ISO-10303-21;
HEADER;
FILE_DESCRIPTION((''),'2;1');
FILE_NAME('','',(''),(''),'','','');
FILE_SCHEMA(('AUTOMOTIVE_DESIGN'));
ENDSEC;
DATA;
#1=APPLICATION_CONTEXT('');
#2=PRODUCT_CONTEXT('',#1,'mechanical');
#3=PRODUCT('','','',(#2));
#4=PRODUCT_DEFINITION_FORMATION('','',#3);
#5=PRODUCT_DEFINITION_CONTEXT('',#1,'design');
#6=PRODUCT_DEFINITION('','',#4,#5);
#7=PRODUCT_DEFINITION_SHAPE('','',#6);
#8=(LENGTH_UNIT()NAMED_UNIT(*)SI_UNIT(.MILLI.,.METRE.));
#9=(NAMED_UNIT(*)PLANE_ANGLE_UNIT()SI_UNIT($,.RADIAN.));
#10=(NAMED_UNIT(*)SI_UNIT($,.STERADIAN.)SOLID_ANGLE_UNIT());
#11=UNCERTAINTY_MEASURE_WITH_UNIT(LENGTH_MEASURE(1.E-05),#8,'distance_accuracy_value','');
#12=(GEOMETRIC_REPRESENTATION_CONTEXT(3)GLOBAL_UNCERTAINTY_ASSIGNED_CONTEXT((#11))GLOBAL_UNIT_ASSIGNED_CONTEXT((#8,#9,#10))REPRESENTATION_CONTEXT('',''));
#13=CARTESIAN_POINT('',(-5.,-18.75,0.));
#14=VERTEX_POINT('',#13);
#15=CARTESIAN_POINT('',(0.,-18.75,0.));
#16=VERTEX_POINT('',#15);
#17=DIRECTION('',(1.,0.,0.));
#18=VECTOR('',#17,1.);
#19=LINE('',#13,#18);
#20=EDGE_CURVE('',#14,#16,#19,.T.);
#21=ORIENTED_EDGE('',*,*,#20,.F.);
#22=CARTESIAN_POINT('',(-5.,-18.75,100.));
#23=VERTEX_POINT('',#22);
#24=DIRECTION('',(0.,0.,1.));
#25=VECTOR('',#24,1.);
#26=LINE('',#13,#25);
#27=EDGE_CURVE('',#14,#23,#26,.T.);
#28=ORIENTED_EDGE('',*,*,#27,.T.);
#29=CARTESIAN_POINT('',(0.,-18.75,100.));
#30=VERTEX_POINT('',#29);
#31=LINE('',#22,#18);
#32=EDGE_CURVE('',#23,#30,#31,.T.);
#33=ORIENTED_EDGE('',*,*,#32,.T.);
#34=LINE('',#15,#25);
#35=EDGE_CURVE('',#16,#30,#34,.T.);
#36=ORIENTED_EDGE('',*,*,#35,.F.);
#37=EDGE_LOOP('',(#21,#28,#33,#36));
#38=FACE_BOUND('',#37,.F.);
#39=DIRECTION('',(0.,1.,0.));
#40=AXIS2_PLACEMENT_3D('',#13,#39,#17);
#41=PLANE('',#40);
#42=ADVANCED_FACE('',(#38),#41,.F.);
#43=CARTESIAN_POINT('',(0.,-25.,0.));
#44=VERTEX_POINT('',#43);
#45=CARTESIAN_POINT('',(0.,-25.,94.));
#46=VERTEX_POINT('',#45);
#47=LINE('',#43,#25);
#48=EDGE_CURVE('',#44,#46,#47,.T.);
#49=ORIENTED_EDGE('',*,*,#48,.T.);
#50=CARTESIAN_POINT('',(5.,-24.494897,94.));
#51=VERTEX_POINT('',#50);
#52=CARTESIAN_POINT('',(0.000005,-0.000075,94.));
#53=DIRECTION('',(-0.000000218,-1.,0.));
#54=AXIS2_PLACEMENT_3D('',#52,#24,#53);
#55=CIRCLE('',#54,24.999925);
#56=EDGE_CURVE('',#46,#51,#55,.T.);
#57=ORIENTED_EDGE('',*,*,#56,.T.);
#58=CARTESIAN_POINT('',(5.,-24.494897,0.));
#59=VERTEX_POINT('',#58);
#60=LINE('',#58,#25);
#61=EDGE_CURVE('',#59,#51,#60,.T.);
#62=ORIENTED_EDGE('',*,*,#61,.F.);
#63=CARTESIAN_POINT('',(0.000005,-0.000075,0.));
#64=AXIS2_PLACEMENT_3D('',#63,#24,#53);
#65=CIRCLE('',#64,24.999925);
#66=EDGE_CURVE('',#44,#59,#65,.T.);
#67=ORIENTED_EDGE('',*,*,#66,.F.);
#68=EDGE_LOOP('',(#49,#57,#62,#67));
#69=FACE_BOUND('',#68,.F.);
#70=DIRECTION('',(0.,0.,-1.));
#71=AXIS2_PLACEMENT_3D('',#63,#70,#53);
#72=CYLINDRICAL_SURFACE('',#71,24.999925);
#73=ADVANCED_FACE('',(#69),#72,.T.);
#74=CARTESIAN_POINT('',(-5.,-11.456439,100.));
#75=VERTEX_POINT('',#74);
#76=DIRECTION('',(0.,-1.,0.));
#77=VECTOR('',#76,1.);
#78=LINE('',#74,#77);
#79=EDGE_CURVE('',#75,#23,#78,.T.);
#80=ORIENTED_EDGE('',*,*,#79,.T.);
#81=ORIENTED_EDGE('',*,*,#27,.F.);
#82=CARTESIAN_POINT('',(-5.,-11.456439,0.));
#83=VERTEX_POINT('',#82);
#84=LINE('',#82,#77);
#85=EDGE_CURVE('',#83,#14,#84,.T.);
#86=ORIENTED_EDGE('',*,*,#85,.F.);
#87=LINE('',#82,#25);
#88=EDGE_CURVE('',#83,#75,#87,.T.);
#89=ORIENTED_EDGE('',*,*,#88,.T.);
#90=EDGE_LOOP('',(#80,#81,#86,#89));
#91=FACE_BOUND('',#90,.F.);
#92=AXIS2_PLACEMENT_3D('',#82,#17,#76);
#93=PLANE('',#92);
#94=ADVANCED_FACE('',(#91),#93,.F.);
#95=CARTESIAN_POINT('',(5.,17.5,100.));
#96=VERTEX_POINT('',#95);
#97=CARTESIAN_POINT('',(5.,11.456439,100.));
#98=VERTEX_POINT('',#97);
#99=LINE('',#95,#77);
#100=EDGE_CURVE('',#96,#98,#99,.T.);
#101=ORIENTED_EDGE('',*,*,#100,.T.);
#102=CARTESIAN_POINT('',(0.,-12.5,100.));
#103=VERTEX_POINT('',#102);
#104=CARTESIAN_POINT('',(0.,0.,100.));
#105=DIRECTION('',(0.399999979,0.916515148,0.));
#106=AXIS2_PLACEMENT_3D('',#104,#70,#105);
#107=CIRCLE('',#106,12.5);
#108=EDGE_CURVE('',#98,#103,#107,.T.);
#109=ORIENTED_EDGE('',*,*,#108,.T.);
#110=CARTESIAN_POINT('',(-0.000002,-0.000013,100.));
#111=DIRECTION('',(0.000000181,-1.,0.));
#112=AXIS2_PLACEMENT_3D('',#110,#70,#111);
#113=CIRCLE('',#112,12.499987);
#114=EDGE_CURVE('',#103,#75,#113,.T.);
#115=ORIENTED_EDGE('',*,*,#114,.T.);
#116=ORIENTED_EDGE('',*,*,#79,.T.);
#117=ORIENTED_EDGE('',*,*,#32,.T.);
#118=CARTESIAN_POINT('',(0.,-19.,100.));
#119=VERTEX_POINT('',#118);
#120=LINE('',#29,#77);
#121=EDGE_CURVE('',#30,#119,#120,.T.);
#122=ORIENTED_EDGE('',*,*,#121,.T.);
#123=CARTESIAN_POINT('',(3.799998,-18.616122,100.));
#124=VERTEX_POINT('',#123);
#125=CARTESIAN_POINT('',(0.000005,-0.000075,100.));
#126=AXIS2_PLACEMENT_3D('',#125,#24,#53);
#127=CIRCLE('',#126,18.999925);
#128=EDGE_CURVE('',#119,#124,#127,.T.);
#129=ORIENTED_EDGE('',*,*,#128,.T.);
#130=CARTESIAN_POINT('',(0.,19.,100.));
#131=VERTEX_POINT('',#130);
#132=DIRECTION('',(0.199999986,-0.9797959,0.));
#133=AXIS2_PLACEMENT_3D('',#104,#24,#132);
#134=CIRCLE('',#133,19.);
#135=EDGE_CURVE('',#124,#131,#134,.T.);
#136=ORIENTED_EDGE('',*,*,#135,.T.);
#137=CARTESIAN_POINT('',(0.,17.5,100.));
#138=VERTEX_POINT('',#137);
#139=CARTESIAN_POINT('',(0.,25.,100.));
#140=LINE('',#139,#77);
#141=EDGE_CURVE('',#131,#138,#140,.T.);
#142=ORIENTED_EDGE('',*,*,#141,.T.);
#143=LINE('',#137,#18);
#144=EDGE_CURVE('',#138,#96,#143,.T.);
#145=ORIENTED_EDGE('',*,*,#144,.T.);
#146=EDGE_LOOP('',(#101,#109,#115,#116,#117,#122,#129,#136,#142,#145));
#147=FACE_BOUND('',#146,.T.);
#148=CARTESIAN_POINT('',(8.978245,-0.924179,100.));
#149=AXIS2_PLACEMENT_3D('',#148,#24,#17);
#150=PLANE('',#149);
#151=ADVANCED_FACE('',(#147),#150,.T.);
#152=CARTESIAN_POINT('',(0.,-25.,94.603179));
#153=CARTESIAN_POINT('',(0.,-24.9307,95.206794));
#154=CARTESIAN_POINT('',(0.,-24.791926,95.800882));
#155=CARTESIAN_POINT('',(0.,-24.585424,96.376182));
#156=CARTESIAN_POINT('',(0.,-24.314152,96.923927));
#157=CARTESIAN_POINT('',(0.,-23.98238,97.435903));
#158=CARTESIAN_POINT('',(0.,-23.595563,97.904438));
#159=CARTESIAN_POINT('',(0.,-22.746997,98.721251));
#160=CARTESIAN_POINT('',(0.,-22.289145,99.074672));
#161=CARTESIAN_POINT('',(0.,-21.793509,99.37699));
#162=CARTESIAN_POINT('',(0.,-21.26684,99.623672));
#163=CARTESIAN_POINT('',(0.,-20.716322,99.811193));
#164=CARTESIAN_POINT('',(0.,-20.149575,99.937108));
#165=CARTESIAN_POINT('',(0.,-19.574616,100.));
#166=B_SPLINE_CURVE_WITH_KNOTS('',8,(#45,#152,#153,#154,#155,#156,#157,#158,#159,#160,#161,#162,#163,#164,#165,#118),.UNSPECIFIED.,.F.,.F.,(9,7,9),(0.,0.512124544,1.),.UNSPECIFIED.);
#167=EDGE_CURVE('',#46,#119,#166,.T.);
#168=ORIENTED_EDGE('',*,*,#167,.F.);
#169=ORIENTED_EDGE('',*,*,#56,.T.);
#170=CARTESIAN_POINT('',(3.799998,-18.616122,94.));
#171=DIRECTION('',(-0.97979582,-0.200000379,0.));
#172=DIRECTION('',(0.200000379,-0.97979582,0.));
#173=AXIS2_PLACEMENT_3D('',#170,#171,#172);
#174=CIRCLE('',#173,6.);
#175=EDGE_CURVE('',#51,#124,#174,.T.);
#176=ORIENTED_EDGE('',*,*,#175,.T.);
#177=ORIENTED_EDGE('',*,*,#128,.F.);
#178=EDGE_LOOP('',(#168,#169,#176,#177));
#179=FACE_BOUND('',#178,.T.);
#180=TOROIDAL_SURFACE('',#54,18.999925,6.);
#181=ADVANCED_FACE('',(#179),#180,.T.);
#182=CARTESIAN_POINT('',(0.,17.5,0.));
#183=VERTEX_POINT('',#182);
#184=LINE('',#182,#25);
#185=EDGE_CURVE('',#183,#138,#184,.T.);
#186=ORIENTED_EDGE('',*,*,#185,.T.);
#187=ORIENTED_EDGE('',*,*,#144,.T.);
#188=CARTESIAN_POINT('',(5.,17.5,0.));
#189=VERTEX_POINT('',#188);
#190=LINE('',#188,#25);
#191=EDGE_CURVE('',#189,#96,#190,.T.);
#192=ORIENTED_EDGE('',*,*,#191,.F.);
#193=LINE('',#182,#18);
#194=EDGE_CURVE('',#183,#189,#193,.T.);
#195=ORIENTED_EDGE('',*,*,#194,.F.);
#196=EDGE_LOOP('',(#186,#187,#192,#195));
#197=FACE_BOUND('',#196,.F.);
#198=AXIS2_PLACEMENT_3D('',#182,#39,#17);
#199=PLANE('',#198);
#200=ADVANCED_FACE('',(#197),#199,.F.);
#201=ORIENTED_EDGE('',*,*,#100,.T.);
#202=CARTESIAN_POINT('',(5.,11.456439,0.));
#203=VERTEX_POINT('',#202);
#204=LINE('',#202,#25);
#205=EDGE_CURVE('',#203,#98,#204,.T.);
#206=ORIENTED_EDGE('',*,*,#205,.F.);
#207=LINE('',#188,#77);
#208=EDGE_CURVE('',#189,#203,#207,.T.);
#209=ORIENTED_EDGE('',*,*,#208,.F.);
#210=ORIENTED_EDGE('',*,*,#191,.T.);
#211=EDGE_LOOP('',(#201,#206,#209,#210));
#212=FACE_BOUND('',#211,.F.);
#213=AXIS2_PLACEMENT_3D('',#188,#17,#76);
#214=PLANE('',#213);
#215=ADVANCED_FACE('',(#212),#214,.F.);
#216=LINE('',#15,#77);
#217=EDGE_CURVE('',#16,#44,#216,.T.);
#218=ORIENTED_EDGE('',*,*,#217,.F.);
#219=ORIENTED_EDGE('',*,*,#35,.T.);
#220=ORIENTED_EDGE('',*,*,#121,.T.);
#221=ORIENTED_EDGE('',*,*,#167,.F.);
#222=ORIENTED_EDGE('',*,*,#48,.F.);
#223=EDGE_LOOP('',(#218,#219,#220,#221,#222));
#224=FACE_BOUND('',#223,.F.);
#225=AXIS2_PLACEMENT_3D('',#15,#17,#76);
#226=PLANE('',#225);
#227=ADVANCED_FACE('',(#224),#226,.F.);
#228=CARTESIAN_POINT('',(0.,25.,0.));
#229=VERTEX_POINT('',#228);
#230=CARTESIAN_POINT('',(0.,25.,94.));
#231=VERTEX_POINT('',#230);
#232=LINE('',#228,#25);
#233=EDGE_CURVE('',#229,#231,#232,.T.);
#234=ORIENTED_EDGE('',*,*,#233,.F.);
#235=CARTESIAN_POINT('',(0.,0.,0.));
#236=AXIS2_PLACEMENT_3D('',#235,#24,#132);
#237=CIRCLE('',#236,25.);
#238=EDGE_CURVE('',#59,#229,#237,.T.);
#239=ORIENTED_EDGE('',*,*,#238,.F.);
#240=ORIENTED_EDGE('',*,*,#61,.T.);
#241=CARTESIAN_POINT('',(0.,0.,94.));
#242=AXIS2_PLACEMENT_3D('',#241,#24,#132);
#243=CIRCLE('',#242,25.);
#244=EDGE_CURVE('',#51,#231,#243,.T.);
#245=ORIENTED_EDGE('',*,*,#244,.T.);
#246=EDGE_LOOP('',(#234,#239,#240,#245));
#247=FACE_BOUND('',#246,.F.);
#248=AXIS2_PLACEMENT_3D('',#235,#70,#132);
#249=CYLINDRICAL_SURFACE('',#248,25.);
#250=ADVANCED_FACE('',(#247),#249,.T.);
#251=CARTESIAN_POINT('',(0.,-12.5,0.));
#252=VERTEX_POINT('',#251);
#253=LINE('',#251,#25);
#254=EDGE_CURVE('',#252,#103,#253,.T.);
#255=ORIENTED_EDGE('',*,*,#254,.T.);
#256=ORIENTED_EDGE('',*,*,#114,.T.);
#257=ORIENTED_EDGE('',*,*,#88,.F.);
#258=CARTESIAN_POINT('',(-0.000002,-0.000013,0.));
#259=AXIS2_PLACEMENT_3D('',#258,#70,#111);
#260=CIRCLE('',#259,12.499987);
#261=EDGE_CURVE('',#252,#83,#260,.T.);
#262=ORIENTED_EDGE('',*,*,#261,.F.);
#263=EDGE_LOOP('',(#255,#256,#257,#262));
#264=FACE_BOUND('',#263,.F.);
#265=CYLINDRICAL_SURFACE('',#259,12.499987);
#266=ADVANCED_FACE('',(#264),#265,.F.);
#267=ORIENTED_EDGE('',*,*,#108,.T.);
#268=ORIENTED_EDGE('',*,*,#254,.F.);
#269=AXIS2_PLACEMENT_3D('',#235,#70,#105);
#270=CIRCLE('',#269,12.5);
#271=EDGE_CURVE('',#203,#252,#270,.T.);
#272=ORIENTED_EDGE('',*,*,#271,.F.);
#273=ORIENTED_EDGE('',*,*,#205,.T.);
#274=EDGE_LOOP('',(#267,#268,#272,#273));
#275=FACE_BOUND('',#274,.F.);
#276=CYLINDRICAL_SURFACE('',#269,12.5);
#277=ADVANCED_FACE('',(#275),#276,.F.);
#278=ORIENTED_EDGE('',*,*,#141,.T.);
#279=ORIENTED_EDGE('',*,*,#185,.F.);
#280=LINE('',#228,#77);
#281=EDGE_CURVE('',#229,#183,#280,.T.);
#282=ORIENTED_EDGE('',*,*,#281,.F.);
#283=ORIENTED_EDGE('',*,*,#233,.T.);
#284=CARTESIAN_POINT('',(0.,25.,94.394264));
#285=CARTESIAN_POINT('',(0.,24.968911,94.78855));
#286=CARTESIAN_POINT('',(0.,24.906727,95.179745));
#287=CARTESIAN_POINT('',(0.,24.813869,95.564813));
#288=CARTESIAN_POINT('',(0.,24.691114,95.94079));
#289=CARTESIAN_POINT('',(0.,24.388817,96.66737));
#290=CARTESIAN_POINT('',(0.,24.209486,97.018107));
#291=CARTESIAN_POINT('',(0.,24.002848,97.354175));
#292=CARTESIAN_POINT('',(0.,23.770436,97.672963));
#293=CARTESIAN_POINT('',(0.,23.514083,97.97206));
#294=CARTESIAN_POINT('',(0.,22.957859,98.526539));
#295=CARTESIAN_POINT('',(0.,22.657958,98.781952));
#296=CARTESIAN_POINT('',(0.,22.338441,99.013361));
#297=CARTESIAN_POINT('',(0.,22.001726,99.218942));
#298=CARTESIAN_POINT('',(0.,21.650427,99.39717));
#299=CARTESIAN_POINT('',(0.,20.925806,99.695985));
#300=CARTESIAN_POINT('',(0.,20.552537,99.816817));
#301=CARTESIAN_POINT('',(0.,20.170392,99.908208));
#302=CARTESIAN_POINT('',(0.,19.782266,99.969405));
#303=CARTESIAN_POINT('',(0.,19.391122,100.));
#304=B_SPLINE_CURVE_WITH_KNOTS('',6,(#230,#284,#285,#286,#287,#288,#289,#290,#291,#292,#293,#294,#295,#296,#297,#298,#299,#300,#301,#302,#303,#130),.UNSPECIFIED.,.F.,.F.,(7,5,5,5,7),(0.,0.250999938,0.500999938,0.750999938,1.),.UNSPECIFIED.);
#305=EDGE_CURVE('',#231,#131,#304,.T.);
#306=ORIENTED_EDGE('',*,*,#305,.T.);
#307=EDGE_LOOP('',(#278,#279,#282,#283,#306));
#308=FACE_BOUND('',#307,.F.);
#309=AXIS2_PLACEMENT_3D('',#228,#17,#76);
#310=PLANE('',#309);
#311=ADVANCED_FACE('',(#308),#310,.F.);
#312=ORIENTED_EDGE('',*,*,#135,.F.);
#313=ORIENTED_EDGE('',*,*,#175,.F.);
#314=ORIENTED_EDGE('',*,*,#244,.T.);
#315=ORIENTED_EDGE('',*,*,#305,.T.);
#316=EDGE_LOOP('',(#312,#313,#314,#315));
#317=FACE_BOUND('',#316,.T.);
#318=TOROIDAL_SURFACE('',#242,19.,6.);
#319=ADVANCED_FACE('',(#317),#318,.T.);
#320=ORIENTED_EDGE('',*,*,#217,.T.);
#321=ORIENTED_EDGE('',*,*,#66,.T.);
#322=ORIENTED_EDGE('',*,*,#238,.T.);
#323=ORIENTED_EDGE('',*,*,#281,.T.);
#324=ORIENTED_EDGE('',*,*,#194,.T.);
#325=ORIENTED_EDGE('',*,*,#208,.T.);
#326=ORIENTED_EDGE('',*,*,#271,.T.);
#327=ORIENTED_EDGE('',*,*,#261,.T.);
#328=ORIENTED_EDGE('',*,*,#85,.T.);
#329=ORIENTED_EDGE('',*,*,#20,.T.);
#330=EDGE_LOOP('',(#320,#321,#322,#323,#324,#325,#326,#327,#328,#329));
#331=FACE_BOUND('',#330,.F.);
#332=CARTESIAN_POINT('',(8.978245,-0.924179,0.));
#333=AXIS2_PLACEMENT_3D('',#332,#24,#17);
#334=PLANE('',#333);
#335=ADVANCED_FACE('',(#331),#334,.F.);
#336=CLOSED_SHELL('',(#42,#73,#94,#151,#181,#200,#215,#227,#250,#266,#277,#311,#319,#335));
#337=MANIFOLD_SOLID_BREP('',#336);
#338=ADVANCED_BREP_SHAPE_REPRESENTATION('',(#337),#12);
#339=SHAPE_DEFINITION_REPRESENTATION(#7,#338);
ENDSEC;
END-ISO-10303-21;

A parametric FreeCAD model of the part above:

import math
import FreeCAD as App
import Part
import Sketcher
from FreeCAD import Vector
Q = App.Units.Quantity


def edges_at(feature, points):
    """Names of the edges that pass closest to the given points."""
    edges = feature.Shape.Edges
    near = lambda p: min(range(len(edges)), key=lambda i: edges[i].distToShape(Part.Vertex(*p))[0])
    return sorted({f"Edge{near(p) + 1}" for p in points})

doc = App.newDocument("Part")
body = doc.addObject("PartDesign::Body", "Body")

# Sketch on XY plane
sketch1 = doc.addObject("Sketcher::SketchObject", "Sketch")
body.addObject(sketch1)
sketch1.AttachmentSupport = (doc.XY_Plane, [""])
sketch1.MapMode = "FlatFace"
sketch1.addGeometry([
    Part.ArcOfCircle(Part.Circle(Vector(0, 0, 0), Vector(0, 0, 1), 12.5), math.radians(-90.000002), math.radians(66.421823)),  # 0
    Part.ArcOfCircle(Part.Circle(Vector(-0.000002, -0.000013, 0), Vector(0, 0, 1), 12.499987), math.radians(-113.578194), math.radians(-89.99999)),  # 1
    Part.LineSegment(Vector(-5, -11.456439, 0), Vector(-5, -18.75, 0)),  # 2
    Part.LineSegment(Vector(-5, -18.75, 0), Vector(0, -18.75, 0)),  # 3
    Part.LineSegment(Vector(0, -18.75, 0), Vector(0, -25, 0)),  # 4
    Part.ArcOfCircle(Part.Circle(Vector(0.000005, -0.000075, 0), Vector(0, 0, 1), 24.999925), math.radians(-90.000012), math.radians(-78.463019)),  # 5
    Part.ArcOfCircle(Part.Circle(Vector(0, 0, 0), Vector(0, 0, 1), 25), math.radians(-78.463042), math.radians(90.000001)),  # 6
    Part.LineSegment(Vector(0, 25, 0), Vector(0, 17.5, 0)),  # 7
    Part.LineSegment(Vector(0, 17.5, 0), Vector(5, 17.5, 0)),  # 8
    Part.LineSegment(Vector(5, 17.5, 0), Vector(5, 11.456439, 0)),  # 9
], False)
sketch1.addConstraint([
    Sketcher.Constraint("Coincident", 0, 1, 1, 2),
    Sketcher.Constraint("Coincident", 1, 1, 2, 1),
    Sketcher.Constraint("Coincident", 2, 2, 3, 1),
    Sketcher.Constraint("Coincident", 3, 2, 4, 1),
    Sketcher.Constraint("Coincident", 4, 2, 5, 1),
    Sketcher.Constraint("Coincident", 5, 2, 6, 1),
    Sketcher.Constraint("Coincident", 6, 2, 7, 1),
    Sketcher.Constraint("Coincident", 7, 2, 8, 1),
    Sketcher.Constraint("Coincident", 8, 2, 9, 1),
    Sketcher.Constraint("Coincident", 9, 2, 0, 2),
    Sketcher.Constraint("Vertical", 2),
    Sketcher.Constraint("Horizontal", 3),
    Sketcher.Constraint("Vertical", 4),
    Sketcher.Constraint("Vertical", 7),
    Sketcher.Constraint("Horizontal", 8),
    Sketcher.Constraint("Vertical", 9),
    Sketcher.Constraint("Coincident", 0, 3, -1, 1),
    Sketcher.Constraint("Coincident", 6, 3, -1, 1),
    Sketcher.Constraint("PointOnObject", 0, 1, -2),
    Sketcher.Constraint("PointOnObject", 3, 2, -2),
    Sketcher.Constraint("PointOnObject", 6, 2, -2),
    Sketcher.Constraint("Radius", 6, Q("25 mm")),
    Sketcher.Constraint("Radius", 0, Q("12.5 mm")),
    Sketcher.Constraint("DistanceX", 3, 1, 3, 2, Q("5 mm")),
    Sketcher.Constraint("DistanceX", 8, 1, 8, 2, Q("5 mm")),
    Sketcher.Constraint("DistanceY", 7, 2, 7, 1, Q("7.5 mm")),
    Sketcher.Constraint("DistanceY", 4, 2, -1, 1, Q("25 mm")),
    Sketcher.Constraint("DistanceX", -1, 1, 5, 2, Q("5 mm")),
    Sketcher.Constraint("DistanceY", 4, 2, 4, 1, Q("6.25 mm")),
    Sketcher.Constraint("Radius", 1, Q("12.499987 mm")),
    Sketcher.Constraint("Radius", 5, Q("24.999925 mm")),
    Sketcher.Constraint("DistanceY", 2, 2, 2, 1, Q("7.293561 mm")),
])
pad1 = doc.addObject("PartDesign::Pad", "Pad")
body.addObject(pad1)
pad1.Profile = sketch1
pad1.Length = 100
doc.recompute()

fillet = doc.addObject("PartDesign::Fillet", "Fillet")
body.addObject(fillet)
fillet.Base = (pad1, edges_at(pad1, [(24.873, 2.513, 100)]))
fillet.Radius = 6

doc.recompute()
